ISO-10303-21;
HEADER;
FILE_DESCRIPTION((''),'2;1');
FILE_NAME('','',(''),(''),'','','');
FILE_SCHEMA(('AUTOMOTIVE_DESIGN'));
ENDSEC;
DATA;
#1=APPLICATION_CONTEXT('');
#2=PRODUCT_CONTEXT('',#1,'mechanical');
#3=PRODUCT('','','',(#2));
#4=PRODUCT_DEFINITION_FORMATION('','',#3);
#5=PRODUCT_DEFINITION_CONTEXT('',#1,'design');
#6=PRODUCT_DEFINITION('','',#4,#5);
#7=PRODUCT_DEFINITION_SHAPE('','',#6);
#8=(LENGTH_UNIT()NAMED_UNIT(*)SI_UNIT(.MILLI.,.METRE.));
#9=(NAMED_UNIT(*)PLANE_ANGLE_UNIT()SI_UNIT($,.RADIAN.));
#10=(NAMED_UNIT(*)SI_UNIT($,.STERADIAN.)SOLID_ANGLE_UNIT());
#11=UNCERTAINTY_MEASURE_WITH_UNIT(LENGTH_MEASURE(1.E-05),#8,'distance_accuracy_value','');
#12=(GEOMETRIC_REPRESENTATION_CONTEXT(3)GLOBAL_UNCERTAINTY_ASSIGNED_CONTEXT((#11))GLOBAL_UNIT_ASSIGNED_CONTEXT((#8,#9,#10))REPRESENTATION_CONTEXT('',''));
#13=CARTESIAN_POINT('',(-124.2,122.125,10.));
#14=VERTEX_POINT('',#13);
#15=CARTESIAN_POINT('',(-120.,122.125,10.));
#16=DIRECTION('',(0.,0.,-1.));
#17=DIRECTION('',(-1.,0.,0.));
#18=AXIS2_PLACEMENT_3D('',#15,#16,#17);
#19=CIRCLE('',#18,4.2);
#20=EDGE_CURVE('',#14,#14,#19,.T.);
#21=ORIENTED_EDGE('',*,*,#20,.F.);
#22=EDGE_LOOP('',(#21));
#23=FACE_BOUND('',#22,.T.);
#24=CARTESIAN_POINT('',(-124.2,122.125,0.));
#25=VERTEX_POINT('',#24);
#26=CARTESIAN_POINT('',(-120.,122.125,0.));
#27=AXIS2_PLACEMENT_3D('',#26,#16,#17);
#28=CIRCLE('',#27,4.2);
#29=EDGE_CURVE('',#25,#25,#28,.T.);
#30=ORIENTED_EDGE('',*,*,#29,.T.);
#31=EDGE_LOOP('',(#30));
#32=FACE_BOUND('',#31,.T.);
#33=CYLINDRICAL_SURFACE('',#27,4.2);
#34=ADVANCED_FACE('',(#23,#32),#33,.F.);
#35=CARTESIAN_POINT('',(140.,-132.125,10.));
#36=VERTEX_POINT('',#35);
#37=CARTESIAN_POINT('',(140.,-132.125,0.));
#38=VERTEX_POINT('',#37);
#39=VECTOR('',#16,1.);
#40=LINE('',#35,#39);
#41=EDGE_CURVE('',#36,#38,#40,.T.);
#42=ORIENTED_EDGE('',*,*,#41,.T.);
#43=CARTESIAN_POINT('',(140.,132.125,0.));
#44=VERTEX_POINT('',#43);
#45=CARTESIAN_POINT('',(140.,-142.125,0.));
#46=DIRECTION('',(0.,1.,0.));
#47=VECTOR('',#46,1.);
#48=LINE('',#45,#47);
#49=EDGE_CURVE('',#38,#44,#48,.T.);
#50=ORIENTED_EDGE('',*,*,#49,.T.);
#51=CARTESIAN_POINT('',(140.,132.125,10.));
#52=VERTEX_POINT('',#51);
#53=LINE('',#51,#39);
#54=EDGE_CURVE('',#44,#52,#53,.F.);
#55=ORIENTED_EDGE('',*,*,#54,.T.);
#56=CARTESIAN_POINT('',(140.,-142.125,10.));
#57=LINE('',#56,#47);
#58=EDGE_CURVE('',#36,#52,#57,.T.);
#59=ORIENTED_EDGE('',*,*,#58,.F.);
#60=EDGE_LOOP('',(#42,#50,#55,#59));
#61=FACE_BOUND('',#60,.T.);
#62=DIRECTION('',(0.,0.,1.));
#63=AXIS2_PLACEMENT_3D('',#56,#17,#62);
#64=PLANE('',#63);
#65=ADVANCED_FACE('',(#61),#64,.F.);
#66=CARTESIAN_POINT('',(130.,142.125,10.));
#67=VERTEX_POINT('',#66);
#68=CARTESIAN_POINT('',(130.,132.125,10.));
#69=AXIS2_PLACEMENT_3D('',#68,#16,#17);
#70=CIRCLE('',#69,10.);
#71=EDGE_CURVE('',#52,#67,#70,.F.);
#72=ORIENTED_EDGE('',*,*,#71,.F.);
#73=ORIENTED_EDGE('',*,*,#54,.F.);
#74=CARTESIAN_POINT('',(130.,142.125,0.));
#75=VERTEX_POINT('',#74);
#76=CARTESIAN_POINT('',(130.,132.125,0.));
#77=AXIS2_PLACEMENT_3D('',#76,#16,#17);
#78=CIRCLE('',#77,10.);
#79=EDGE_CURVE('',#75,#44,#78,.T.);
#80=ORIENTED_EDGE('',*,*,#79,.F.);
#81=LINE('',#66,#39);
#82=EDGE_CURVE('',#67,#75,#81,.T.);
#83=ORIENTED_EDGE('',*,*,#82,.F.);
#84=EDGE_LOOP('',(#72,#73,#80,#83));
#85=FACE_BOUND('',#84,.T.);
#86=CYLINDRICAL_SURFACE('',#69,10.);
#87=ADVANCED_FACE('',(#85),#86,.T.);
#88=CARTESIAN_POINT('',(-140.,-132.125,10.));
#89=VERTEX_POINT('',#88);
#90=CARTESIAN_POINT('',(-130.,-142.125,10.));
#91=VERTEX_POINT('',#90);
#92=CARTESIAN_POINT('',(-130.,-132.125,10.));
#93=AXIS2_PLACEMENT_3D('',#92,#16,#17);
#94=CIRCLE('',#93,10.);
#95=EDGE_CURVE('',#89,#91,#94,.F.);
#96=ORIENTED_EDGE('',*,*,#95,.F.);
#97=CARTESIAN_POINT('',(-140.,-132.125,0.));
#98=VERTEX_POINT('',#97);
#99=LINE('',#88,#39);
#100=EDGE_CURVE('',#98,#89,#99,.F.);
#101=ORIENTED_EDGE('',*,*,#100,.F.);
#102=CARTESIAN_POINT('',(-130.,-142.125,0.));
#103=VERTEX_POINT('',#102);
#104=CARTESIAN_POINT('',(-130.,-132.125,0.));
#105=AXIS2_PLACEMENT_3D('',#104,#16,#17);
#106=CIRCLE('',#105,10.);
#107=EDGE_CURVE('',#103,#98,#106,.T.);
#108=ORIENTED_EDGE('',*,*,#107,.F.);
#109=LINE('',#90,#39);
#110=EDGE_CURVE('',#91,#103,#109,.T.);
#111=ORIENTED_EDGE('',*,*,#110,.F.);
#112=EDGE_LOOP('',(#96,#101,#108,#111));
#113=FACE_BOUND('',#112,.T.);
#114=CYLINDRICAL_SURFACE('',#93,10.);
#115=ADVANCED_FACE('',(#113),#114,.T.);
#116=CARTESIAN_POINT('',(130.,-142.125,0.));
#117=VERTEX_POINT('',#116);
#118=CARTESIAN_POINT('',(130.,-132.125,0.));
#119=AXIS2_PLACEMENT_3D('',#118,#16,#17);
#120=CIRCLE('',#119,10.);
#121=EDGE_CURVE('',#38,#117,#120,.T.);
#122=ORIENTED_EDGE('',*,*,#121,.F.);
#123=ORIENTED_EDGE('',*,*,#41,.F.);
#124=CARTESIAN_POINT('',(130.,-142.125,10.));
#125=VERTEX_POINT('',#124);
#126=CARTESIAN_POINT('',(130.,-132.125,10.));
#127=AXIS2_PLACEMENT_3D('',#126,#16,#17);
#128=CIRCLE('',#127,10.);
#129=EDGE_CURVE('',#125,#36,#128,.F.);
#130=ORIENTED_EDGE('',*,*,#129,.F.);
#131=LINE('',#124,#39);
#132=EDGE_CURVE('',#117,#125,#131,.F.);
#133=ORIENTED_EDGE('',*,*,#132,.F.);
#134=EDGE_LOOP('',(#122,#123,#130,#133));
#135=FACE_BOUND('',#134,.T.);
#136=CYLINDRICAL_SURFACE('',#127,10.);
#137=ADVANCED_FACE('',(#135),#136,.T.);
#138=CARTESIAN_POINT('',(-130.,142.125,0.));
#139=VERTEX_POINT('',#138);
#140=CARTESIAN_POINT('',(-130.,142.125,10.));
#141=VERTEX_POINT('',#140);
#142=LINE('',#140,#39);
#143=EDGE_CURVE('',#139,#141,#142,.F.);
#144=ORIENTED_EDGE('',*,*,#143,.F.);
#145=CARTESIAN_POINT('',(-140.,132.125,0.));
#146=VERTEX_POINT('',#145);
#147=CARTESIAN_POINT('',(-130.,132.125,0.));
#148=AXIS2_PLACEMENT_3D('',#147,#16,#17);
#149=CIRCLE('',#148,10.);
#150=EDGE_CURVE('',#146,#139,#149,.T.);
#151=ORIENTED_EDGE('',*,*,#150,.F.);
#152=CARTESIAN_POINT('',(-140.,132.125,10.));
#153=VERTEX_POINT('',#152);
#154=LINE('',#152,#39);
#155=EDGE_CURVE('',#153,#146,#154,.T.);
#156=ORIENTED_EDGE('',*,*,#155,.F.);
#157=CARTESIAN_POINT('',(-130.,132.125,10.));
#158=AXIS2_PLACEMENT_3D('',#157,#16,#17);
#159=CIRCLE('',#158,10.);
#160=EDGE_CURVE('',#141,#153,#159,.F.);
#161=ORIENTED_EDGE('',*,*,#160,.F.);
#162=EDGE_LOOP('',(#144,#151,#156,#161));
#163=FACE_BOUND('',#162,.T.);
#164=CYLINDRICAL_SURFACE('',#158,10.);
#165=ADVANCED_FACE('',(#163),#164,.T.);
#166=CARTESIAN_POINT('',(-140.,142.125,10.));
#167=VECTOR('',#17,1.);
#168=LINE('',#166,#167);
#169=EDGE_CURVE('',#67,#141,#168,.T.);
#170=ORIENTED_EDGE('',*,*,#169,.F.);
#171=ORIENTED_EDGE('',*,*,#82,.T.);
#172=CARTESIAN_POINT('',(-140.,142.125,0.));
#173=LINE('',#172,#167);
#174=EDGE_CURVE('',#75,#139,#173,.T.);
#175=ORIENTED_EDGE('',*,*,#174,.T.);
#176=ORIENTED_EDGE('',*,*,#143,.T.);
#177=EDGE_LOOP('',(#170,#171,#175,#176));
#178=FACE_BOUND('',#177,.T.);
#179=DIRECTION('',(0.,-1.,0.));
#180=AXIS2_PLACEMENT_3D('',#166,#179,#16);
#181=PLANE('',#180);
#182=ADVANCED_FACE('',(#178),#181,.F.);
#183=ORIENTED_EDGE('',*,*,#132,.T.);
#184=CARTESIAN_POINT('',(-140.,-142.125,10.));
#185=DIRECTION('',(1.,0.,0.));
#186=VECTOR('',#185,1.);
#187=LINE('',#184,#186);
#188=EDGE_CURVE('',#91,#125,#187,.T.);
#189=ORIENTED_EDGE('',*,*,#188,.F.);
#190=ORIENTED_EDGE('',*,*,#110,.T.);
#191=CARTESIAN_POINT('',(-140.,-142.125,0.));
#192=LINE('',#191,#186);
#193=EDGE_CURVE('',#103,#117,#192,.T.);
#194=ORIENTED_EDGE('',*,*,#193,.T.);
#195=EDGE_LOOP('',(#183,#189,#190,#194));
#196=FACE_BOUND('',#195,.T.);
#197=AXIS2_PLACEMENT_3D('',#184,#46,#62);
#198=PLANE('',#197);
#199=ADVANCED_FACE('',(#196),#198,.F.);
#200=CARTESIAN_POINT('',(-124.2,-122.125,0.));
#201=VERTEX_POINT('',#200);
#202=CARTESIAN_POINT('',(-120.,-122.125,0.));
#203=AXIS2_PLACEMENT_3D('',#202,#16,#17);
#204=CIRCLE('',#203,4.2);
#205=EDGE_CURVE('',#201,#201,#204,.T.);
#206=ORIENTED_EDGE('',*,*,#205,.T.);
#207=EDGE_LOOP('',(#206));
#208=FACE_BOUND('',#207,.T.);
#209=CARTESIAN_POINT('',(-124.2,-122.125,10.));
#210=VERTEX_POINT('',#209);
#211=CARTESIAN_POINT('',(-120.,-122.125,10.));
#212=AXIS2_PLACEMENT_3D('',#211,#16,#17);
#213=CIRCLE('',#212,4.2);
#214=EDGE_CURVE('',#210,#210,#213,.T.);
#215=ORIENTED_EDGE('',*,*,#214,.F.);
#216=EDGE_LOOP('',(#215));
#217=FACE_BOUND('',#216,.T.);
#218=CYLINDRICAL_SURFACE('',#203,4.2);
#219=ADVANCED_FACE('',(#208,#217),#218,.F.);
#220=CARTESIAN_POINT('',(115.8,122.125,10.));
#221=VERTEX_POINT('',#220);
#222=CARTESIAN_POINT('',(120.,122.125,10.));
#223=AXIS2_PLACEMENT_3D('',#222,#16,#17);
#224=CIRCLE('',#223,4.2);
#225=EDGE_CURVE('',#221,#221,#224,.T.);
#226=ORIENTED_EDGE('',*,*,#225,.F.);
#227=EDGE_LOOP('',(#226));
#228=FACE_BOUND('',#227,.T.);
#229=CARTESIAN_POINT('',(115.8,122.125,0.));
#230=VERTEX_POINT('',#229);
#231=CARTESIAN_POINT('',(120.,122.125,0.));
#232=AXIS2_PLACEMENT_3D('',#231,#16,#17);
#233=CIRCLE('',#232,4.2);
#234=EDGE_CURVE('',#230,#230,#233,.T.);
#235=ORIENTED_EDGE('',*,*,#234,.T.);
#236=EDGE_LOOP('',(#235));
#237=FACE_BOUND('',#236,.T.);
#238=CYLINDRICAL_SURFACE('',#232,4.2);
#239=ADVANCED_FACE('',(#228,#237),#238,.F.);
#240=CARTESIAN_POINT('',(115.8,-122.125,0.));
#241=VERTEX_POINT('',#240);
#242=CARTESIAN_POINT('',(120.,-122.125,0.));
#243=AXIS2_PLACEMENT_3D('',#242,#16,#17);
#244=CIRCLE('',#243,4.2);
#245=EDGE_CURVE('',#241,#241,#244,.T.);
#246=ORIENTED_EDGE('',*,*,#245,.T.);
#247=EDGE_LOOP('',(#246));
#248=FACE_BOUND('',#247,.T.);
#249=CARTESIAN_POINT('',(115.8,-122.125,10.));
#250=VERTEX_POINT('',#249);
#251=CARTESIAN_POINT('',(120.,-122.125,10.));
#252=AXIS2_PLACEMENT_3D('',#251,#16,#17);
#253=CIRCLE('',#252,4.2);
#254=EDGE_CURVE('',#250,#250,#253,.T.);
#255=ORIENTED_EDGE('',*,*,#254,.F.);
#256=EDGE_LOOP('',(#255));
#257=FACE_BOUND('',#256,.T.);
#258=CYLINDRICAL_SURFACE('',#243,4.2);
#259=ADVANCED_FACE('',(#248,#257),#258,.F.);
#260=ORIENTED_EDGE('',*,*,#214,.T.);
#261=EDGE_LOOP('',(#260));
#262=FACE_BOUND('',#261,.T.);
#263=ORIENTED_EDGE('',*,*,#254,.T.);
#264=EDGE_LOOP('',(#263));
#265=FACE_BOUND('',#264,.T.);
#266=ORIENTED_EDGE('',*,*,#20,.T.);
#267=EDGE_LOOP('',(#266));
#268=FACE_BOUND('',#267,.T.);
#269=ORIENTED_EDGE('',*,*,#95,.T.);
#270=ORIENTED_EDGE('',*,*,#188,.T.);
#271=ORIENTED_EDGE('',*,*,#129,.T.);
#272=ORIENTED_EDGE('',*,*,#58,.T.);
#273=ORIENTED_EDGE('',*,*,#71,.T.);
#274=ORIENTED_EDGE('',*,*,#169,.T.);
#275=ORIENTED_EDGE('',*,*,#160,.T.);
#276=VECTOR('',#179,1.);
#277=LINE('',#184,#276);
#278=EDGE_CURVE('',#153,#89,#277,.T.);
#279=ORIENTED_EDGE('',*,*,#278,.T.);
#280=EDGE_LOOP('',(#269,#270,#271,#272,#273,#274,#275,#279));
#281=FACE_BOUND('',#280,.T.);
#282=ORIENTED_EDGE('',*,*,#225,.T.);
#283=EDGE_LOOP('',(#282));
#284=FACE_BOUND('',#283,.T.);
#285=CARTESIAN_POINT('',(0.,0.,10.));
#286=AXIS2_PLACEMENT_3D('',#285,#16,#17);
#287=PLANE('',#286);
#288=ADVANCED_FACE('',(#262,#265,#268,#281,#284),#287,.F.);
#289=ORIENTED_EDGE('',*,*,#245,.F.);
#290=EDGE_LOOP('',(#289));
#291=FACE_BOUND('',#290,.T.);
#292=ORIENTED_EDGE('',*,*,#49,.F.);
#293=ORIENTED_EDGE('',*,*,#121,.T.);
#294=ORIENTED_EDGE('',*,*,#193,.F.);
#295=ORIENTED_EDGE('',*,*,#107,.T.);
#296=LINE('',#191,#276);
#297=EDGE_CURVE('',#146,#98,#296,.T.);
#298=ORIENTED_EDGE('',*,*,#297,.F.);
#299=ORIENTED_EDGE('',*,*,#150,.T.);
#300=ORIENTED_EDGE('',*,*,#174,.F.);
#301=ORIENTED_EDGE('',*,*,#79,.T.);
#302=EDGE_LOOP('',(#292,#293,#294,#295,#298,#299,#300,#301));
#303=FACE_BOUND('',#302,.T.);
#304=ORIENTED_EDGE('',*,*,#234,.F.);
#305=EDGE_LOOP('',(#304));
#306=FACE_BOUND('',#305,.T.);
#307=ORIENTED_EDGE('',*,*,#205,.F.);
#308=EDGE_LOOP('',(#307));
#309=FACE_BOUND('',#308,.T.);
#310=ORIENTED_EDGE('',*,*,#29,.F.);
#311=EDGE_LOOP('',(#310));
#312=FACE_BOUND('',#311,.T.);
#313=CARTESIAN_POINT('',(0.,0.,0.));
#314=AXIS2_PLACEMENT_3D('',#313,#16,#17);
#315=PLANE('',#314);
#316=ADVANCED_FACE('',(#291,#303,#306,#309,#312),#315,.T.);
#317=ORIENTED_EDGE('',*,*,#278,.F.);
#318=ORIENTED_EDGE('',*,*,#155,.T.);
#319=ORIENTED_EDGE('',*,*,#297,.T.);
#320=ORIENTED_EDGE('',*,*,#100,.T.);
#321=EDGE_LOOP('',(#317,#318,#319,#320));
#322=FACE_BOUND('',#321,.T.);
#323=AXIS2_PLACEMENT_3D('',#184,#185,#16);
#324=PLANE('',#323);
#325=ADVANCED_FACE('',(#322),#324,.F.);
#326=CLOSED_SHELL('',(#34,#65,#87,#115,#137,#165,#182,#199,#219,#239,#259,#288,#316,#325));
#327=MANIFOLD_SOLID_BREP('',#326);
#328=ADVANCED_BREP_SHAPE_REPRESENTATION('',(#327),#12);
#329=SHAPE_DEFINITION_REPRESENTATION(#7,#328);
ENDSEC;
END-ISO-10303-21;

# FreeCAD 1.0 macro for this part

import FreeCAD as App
import Part
import Sketcher
Q = App.Units.Quantity


def edges_at(feature, points):
    """Names of the edges that pass closest to the given points."""
    edges = feature.Shape.Edges
    near = lambda p: min(range(len(edges)), key=lambda i: edges[i].distToShape(Part.Vertex(*p))[0])
    return sorted({f"Edge{near(p) + 1}" for p in points})

doc = App.newDocument("Part")
body = doc.addObject("PartDesign::Body", "Body")

sketch1 = body.newObject("Sketcher::SketchObject", "Sketch")
sketch1.AttachmentSupport = (doc.getObject("XY_Plane"), [""])
sketch1.MapMode = "FlatFace"
sketch1.addGeometry([
    Part.LineSegment(App.Vector(-140, 142.125, 0), App.Vector(-140, -142.125, 0)),
    Part.LineSegment(App.Vector(-140, -142.125, 0), App.Vector(140, -142.125, 0)),
    Part.LineSegment(App.Vector(140, -142.125, 0), App.Vector(140, 142.125, 0)),
    Part.LineSegment(App.Vector(140, 142.125, 0), App.Vector(-140, 142.125, 0)),
], False)
sketch1.addConstraint([
    Sketcher.Constraint("Coincident", 0, 2, 1, 1),
    Sketcher.Constraint("Coincident", 1, 2, 2, 1),
    Sketcher.Constraint("Coincident", 2, 2, 3, 1),
    Sketcher.Constraint("Coincident", 3, 2, 0, 1),
    Sketcher.Constraint("Vertical", 0),
    Sketcher.Constraint("Horizontal", 1),
    Sketcher.Constraint("Vertical", 2),
    Sketcher.Constraint("Horizontal", 3),
    Sketcher.Constraint("Symmetric", 0, 2, 2, 2, -1, 1),
    Sketcher.Constraint("DistanceX", 1, 1, 1, 2, Q("280 mm")),
    Sketcher.Constraint("DistanceY", 0, 2, 0, 1, Q("284.25 mm")),
])
pad1 = body.newObject("PartDesign::Pad", "Pad")
pad1.Profile = sketch1
pad1.Length = 10
doc.recompute()

fillet = body.newObject("PartDesign::Fillet", "Fillet")
fillet.Base = (pad1, edges_at(pad1, [
    (140, -142.125, 5),
    (-140, -142.125, 5),
    (-140, 142.125, 5),
    (140, 142.125, 5),
]))
fillet.Radius = 10

sketch2 = body.newObject("Sketcher::SketchObject", "Sketch001")
sketch2.AttachmentSupport = (doc.getObject("XY_Plane"), [""])
sketch2.MapMode = "FlatFace"
sketch2.addGeometry([
    Part.Circle(App.Vector(-120, 122.125, 0), App.Vector(0, 0, 1), 4.2),
    Part.Circle(App.Vector(120, 122.125, 0), App.Vector(0, 0, 1), 4.2),
    Part.Circle(App.Vector(120, -122.125, 0), App.Vector(0, 0, 1), 4.2),
    Part.Circle(App.Vector(-120, -122.125, 0), App.Vector(0, 0, 1), 4.2),
], False)
sketch2.addConstraint([
    Sketcher.Constraint("Equal", 0, 1),
    Sketcher.Constraint("Equal", 1, 2),
    Sketcher.Constraint("Equal", 2, 3),
    Sketcher.Constraint("Symmetric", 0, 3, 2, 3, -1, 1),
    Sketcher.Constraint("Symmetric", 1, 3, 3, 3, -1, 1),
    Sketcher.Constraint("Symmetric", 0, 3, 1, 3, -2),
    Sketcher.Constraint("Diameter", 0, Q("8.4 mm")),
    Sketcher.Constraint("DistanceX", 0, 3, -1, 1, Q("120 mm")),
    Sketcher.Constraint("DistanceY", 2, 3, 1, 3, Q("244.25 mm")),
])
doc.recompute()
hole = body.newObject("PartDesign::Hole", "Hole")
hole.Profile = sketch2
hole.ThreadType = "None"
hole.Diameter = 8.4
hole.DepthType = "ThroughAll"
hole.Reversed = True

doc.recompute()
